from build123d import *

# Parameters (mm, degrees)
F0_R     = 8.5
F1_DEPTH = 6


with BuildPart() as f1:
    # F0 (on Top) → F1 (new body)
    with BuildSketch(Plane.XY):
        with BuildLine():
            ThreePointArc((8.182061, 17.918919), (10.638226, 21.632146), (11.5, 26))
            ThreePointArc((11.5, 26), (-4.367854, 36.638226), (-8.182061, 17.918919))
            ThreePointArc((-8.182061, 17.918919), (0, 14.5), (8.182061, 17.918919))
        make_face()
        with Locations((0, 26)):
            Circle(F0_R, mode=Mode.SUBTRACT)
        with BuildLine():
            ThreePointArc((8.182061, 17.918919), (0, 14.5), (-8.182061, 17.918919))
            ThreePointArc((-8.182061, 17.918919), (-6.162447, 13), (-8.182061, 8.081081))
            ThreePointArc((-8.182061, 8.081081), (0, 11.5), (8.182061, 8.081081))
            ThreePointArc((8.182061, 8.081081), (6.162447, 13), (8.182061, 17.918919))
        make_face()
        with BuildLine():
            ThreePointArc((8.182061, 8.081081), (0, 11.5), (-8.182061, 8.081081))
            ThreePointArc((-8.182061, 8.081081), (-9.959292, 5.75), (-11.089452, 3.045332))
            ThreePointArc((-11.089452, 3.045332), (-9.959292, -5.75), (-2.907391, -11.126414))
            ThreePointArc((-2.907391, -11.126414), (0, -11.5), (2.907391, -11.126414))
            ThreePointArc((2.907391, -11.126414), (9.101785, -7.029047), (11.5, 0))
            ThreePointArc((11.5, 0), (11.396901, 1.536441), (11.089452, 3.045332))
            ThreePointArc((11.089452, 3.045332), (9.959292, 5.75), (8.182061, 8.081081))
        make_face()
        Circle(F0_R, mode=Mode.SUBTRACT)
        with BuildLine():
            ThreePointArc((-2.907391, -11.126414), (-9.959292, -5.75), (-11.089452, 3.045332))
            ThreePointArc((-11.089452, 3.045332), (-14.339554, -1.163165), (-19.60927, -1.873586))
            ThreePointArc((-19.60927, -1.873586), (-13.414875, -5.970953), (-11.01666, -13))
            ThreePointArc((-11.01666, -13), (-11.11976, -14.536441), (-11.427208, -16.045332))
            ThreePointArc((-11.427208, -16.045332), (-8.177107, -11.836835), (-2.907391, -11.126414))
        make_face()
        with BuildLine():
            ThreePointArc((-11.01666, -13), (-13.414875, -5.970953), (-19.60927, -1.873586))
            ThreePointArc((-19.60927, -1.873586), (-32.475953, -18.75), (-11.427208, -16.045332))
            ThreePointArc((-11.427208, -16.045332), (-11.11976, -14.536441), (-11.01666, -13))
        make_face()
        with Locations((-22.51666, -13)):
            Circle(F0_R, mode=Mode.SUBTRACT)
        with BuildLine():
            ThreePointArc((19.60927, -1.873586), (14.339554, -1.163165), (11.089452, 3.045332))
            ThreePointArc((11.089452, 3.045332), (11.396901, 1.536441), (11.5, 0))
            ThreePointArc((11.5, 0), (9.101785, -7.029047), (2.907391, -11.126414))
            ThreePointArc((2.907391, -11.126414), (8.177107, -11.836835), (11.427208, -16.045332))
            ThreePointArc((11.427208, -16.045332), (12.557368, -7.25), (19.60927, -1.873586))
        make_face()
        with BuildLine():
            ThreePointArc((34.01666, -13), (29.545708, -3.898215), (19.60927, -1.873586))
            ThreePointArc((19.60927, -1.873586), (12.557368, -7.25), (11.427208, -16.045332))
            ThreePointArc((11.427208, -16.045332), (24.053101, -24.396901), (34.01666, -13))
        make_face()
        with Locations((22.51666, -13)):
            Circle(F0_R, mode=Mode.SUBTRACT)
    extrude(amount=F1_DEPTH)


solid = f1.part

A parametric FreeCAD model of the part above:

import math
import FreeCAD as App
import Part
import Sketcher

doc = App.newDocument("Part")
params = doc.addObject("Spreadsheet::Sheet", "Params")
for row, (alias, value) in enumerate([
    ("sketch1_diameter", "17 mm"),
    ("sketch1_radius", "7 mm"),
    ("sketch1_radius2", "11.5 mm"),
    ("pad1_length", "6 mm"),
], start=1):
    params.set(f"A{row}", alias)
    params.set(f"B{row}", "=" + value)
    params.setAlias(f"B{row}", alias)

body = doc.addObject("PartDesign::Body", "Body")

# Sketch on XY plane
sketch1 = doc.addObject("Sketcher::SketchObject", "Sketch")
body.addObject(sketch1)
sketch1.AttachmentSupport = (doc.XY_Plane, [""])
sketch1.MapMode = "FlatFace"
sketch1.addGeometry(Part.ArcOfCircle(Part.Circle(App.Vector(0.000003, 25.999999, 0), App.Vector(0, 0, 1), 11.499997), math.radians(-44.644255), math.radians(0.000003)), False)
sketch1.addGeometry(Part.ArcOfCircle(Part.Circle(App.Vector(0, 26, 0), App.Vector(0, 0, 1), 11.5), math.radians(-0.000001), math.radians(224.644248)), False)
sketch1.addGeometry(Part.ArcOfCircle(Part.Circle(App.Vector(-13.162449, 13, 0), App.Vector(0, 0, 1), 7.000002), math.radians(-44.64423), math.radians(44.64423)), False)
sketch1.addGeometry(Part.ArcOfCircle(Part.Circle(App.Vector(-0.000005, 0.000003, 0), App.Vector(0, 0, 1), 11.499994), math.radians(135.355745), math.radians(164.644256)), False)
sketch1.addGeometry(Part.ArcOfCircle(Part.Circle(App.Vector(-17.839553, 4.899013, 0), App.Vector(0, 0, 1), 7), math.radians(-104.644253), math.radians(-15.355759)), False)
sketch1.addGeometry(Part.ArcOfCircle(Part.Circle(App.Vector(-22.516661, -13, 0), App.Vector(0, 0, 1), 11.5), math.radians(75.355755), math.radians(344.644249)), False)
sketch1.addGeometry(Part.ArcOfCircle(Part.Circle(App.Vector(-4.677108, -17.899011, 0), App.Vector(0, 0, 1), 6.999998), math.radians(75.355741), math.radians(164.644252)), False)
sketch1.addGeometry(Part.ArcOfCircle(Part.Circle(App.Vector(0, 0.000015, 0), App.Vector(0, 0, 1), 11.500015), math.radians(-104.644228), math.radians(-75.355772)), False)
sketch1.addGeometry(Part.ArcOfCircle(Part.Circle(App.Vector(4.677108, -17.899011, 0), App.Vector(0, 0, 1), 6.999998), math.radians(15.355748), math.radians(104.644259)), False)
sketch1.addGeometry(Part.ArcOfCircle(Part.Circle(App.Vector(22.51666, -13, 0), App.Vector(0, 0, 1), 11.5), math.radians(-164.64425), math.radians(0.000002)), False)
sketch1.addGeometry(Part.ArcOfCircle(Part.Circle(App.Vector(22.51666, -13, 0), App.Vector(0, 0, 1), 11.5), math.radians(-0.000002), math.radians(104.644243)), False)
sketch1.addGeometry(Part.ArcOfCircle(Part.Circle(App.Vector(17.839553, 4.899013, 0), App.Vector(0, 0, 1), 7), math.radians(-164.644241), math.radians(-75.355747)), False)
sketch1.addGeometry(Part.ArcOfCircle(Part.Circle(App.Vector(0.000005, 0.000003, 0), App.Vector(0, 0, 1), 11.499994), math.radians(15.355744), math.radians(44.644255)), False)
sketch1.addGeometry(Part.ArcOfCircle(Part.Circle(App.Vector(13.162449, 13, 0), App.Vector(0, 0, 1), 7.000002), math.radians(135.35577), math.radians(224.64423)), False)
sketch1.addGeometry(Part.Circle(App.Vector(-22.51666, -13, 0), App.Vector(0, 0, 1), 8.5), False)
sketch1.addGeometry(Part.Circle(App.Vector(0, 0, 0), App.Vector(0, 0, 1), 8.5), False)
sketch1.addGeometry(Part.Circle(App.Vector(22.51666, -13, 0), App.Vector(0, 0, 1), 8.5), False)
sketch1.addGeometry(Part.Circle(App.Vector(0, 26, 0), App.Vector(0, 0, 1), 8.5), False)
sketch1.addConstraint(Sketcher.Constraint("Tangent", 0, 2, 1, 1))
sketch1.addConstraint(Sketcher.Constraint("Tangent", 1, 2, 2, 2))
sketch1.addConstraint(Sketcher.Constraint("Tangent", 2, 1, 3, 1))
sketch1.addConstraint(Sketcher.Constraint("Tangent", 3, 2, 4, 2))
sketch1.addConstraint(Sketcher.Constraint("Tangent", 4, 1, 5, 1))
sketch1.addConstraint(Sketcher.Constraint("Tangent", 5, 2, 6, 2))
sketch1.addConstraint(Sketcher.Constraint("Tangent", 6, 1, 7, 1))
sketch1.addConstraint(Sketcher.Constraint("Tangent", 7, 2, 8, 2))
sketch1.addConstraint(Sketcher.Constraint("Tangent", 8, 1, 9, 1))
sketch1.addConstraint(Sketcher.Constraint("Tangent", 9, 2, 10, 1))
sketch1.addConstraint(Sketcher.Constraint("Tangent", 10, 2, 11, 2))
sketch1.addConstraint(Sketcher.Constraint("Tangent", 11, 1, 12, 1))
sketch1.addConstraint(Sketcher.Constraint("Tangent", 12, 2, 13, 2))
sketch1.addConstraint(Sketcher.Constraint("Tangent", 13, 1, 0, 1))
sketch1.addConstraint(Sketcher.Constraint("Coincident", 3, 3, -1, 1))
sketch1.addConstraint(Sketcher.Constraint("Coincident", 12, 3, -1, 1))
sketch1.addConstraint(Sketcher.Constraint("Coincident", 15, 3, -1, 1))
sketch1.addConstraint(Sketcher.Constraint("Coincident", 14, 3, 5, 3))
sketch1.addConstraint(Sketcher.Constraint("Coincident", 16, 3, 9, 3))
sketch1.addConstraint(Sketcher.Constraint("Coincident", 17, 3, 0, 3))
sketch1.addConstraint(Sketcher.Constraint("Equal", 1, 5))
sketch1.addConstraint(Sketcher.Constraint("Equal", 4, 6))
sketch1.addConstraint(Sketcher.Constraint("Equal", 6, 8))
sketch1.addConstraint(Sketcher.Constraint("Equal", 5, 9))
sketch1.addConstraint(Sketcher.Constraint("Equal", 9, 10))
sketch1.addConstraint(Sketcher.Constraint("Equal", 8, 11))
sketch1.addConstraint(Sketcher.Constraint("Equal", 3, 12))
sketch1.addConstraint(Sketcher.Constraint("Equal", 2, 13))
sketch1.addConstraint(Sketcher.Constraint("Equal", 14, 15))
sketch1.addConstraint(Sketcher.Constraint("Equal", 15, 16))
sketch1.addConstraint(Sketcher.Constraint("Equal", 16, 17))
sketch1.addConstraint(Sketcher.Constraint("Symmetric", 6, 3, 8, 3, -2))
sketch1.addConstraint(Sketcher.Constraint("Symmetric", 1, 2, 13, 1, -2))
sketch1.addConstraint(Sketcher.Constraint("Horizontal", 5, 3, 9, 3))
sketch1.addConstraint(Sketcher.Constraint("Horizontal", 17, 3, 0, 2))
sketch1.addConstraint(Sketcher.Constraint("Horizontal", 16, 3, 9, 2))
sketch1.addConstraint(Sketcher.Constraint("Vertical", 1, 2, 2, 1))
sketch1.addConstraint(Sketcher.Constraint("Diameter", 14, 17.0))
sketch1.addConstraint(Sketcher.Constraint("Radius", 4, 7.0))
sketch1.addConstraint(Sketcher.Constraint("Radius", 1, 11.5))
sketch1.addConstraint(Sketcher.Constraint("DistanceY", -1, 1, 0, 3, 25.999999))
sketch1.addConstraint(Sketcher.Constraint("DistanceY", 5, 3, -1, 1, 13.0))
sketch1.addConstraint(Sketcher.Constraint("Radius", 2, 7.000002))
sketch1.addConstraint(Sketcher.Constraint("Radius", 7, 11.500015))
sketch1.addConstraint(Sketcher.Constraint("DistanceY", 7, 3, 4, 3, 4.898999))
sketch1.addConstraint(Sketcher.Constraint("DistanceX", 4, 3, 3, 2, 6.750101))
sketch1.setExpression("Constraints[37]", "Params.sketch1_diameter")
sketch1.setExpression("Constraints[38]", "Params.sketch1_radius")
sketch1.setExpression("Constraints[39]", "Params.sketch1_radius2")
pad1 = doc.addObject("PartDesign::Pad", "Pad")
body.addObject(pad1)
pad1.Profile = sketch1
pad1.setExpression("Length", "Params.pad1_length")

doc.recompute()
